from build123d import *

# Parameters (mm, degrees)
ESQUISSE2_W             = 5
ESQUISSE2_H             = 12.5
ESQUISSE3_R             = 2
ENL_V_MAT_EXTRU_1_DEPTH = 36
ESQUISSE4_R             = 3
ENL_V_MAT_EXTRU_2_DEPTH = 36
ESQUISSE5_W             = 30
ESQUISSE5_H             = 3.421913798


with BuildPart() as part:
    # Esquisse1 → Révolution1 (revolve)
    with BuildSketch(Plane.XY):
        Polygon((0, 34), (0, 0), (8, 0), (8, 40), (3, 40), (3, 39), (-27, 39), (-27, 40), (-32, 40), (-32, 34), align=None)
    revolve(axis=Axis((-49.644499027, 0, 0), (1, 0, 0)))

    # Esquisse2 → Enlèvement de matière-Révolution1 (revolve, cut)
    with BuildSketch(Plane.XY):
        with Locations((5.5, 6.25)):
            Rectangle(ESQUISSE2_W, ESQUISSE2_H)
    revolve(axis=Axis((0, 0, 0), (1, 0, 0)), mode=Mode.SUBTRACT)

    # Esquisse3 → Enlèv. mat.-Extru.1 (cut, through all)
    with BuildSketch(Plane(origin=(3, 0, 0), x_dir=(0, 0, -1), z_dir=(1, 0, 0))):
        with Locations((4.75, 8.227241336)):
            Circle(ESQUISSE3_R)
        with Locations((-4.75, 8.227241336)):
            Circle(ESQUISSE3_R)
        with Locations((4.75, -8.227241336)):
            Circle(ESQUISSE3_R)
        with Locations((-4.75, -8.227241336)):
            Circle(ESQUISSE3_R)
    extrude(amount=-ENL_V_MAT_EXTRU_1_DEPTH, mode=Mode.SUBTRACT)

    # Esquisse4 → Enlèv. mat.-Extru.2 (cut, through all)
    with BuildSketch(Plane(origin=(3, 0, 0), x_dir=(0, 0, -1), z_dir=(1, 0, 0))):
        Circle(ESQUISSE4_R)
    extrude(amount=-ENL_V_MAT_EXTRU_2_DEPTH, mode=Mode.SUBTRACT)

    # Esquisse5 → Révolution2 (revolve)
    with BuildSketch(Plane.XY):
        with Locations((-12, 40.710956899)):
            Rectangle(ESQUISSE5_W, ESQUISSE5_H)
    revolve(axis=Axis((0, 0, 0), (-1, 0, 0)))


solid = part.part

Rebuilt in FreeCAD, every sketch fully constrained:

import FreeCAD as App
import Part
import Sketcher

V = App.Vector
Q = App.Units.Quantity

doc = App.newDocument("Part")
params = doc.addObject("Spreadsheet::Sheet", "Params")
for row, (alias, value) in enumerate([
    ("sketch1_width", "8 mm"),
    ("sketch1_width2", "5 mm"),
    ("sketch1_width3", "30 mm"),
    ("sketch1_height", "34 mm"),
    ("sketch1_height2", "40 mm"),
    ("revolution_angle", "360 deg"),
    ("sketch2_width", "5 mm"),
    ("sketch2_height", "12.5 mm"),
    ("groove_angle", "360 deg"),
    ("sketch3_diameter", "4 mm"),
    ("sketch4_diameter", "6 mm"),
    ("sketch5_width", "30 mm"),
    ("revolution2_angle", "360 deg"),
], start=1):
    params.set(f"A{row}", alias)
    params.set(f"B{row}", "=" + value)
    params.setAlias(f"B{row}", alias)

body = doc.addObject("PartDesign::Body", "Body")

sketch1 = body.newObject("Sketcher::SketchObject", "Sketch")
sketch1.AttachmentSupport = (doc.getObject("XY_Plane"), [""])
sketch1.MapMode = "FlatFace"
sketch1.addGeometry([
    Part.LineSegment(V(0, 34, 0), V(0, 0, 0)),
    Part.LineSegment(V(0, 0, 0), V(8, 0, 0)),
    Part.LineSegment(V(8, 0, 0), V(8, 40, 0)),
    Part.LineSegment(V(8, 40, 0), V(3, 40, 0)),
    Part.LineSegment(V(3, 40, 0), V(3, 39, 0)),
    Part.LineSegment(V(3, 39, 0), V(-27, 39, 0)),
    Part.LineSegment(V(-27, 39, 0), V(-27, 40, 0)),
    Part.LineSegment(V(-27, 40, 0), V(-32, 40, 0)),
    Part.LineSegment(V(-32, 40, 0), V(-32, 34, 0)),
    Part.LineSegment(V(-32, 34, 0), V(0, 34, 0)),
], False)
sketch1.addConstraint([
    Sketcher.Constraint("Coincident", 0, 2, 1, 1),
    Sketcher.Constraint("Coincident", 1, 2, 2, 1),
    Sketcher.Constraint("Coincident", 2, 2, 3, 1),
    Sketcher.Constraint("Coincident", 3, 2, 4, 1),
    Sketcher.Constraint("Coincident", 4, 2, 5, 1),
    Sketcher.Constraint("Coincident", 5, 2, 6, 1),
    Sketcher.Constraint("Coincident", 6, 2, 7, 1),
    Sketcher.Constraint("Coincident", 7, 2, 8, 1),
    Sketcher.Constraint("Coincident", 8, 2, 9, 1),
    Sketcher.Constraint("Coincident", 9, 2, 0, 1),
    Sketcher.Constraint("Vertical", 0),
    Sketcher.Constraint("Horizontal", 1),
    Sketcher.Constraint("Vertical", 2),
    Sketcher.Constraint("Horizontal", 3),
    Sketcher.Constraint("Vertical", 4),
    Sketcher.Constraint("Horizontal", 5),
    Sketcher.Constraint("Vertical", 6),
    Sketcher.Constraint("Horizontal", 7),
    Sketcher.Constraint("Vertical", 8),
    Sketcher.Constraint("Horizontal", 9),
    Sketcher.Constraint("Coincident", 0, 2, -1, 1),
    Sketcher.Constraint("Horizontal", 3, 2, 6, 2),
    Sketcher.Constraint("Equal", 3, 7),
    Sketcher.Constraint("DistanceX", 1, 1, 1, 2, Q("8 mm")),
    Sketcher.Constraint("DistanceX", 3, 2, 3, 1, Q("5 mm")),
    Sketcher.Constraint("DistanceX", 5, 2, 5, 1, Q("30 mm")),
    Sketcher.Constraint("DistanceY", 0, 2, 0, 1, Q("34 mm")),
    Sketcher.Constraint("DistanceY", 2, 1, 2, 2, Q("40 mm")),
    Sketcher.Constraint("DistanceY", 4, 2, 4, 1, Q("1 mm")),
])
sketch1.setExpression("Constraints[23]", "Params.sketch1_width")
sketch1.setExpression("Constraints[24]", "Params.sketch1_width2")
sketch1.setExpression("Constraints[25]", "Params.sketch1_width3")
sketch1.setExpression("Constraints[26]", "Params.sketch1_height")
sketch1.setExpression("Constraints[27]", "Params.sketch1_height2")
revolution = body.newObject("PartDesign::Revolution", "Revolution")
revolution.Profile = sketch1
revolution.ReferenceAxis = (sketch1, ["H_Axis"])
revolution.setExpression("Angle", "Params.revolution_angle")

sketch2 = body.newObject("Sketcher::SketchObject", "Sketch001")
sketch2.AttachmentSupport = (doc.getObject("XY_Plane"), [""])
sketch2.MapMode = "FlatFace"
sketch2.addGeometry([
    Part.LineSegment(V(3, 12, 0), V(3, 0, 0)),
    Part.LineSegment(V(3, 0, 0), V(8, 0, 0)),
    Part.LineSegment(V(8, 0, 0), V(8, 12, 0)),
    Part.LineSegment(V(8, 12, 0), V(3, 12, 0)),
], False)
sketch2.addConstraint([
    Sketcher.Constraint("Coincident", 0, 2, 1, 1),
    Sketcher.Constraint("Coincident", 1, 2, 2, 1),
    Sketcher.Constraint("Coincident", 2, 2, 3, 1),
    Sketcher.Constraint("Coincident", 3, 2, 0, 1),
    Sketcher.Constraint("Vertical", 0),
    Sketcher.Constraint("Horizontal", 1),
    Sketcher.Constraint("Vertical", 2),
    Sketcher.Constraint("Horizontal", 3),
    Sketcher.Constraint("PointOnObject", 0, 2, -1),
    Sketcher.Constraint("DistanceX", 1, 1, 1, 2, Q("5 mm")),
    Sketcher.Constraint("DistanceY", 0, 2, 0, 1, Q("12.5 mm")),
    Sketcher.Constraint("DistanceX", -1, 1, 0, 2, Q("3 mm")),
])
sketch2.setExpression("Constraints[9]", "Params.sketch2_width")
sketch2.setExpression("Constraints[10]", "Params.sketch2_height")
groove = body.newObject("PartDesign::Groove", "Groove")
groove.Profile = sketch2
groove.ReferenceAxis = (sketch2, ["H_Axis"])
groove.setExpression("Angle", "Params.groove_angle")

sketch3 = body.newObject("Sketcher::SketchObject", "Sketch002")
sketch3.AttachmentSupport = (doc.getObject("YZ_Plane"), [""])
sketch3.MapMode = "FlatFace"
sketch3.AttachmentOffset = App.Placement(V(0, 0, 3), App.Rotation())
sketch3.addGeometry([
    Part.Circle(V(8.2, -4.8, 0), V(0, 0, 1), 2),
    Part.Circle(V(8.2, 4.8, 0), V(0, 0, 1), 2),
    Part.Circle(V(-8.2, -4.8, 0), V(0, 0, 1), 2),
    Part.Circle(V(-8.2, 4.8, 0), V(0, 0, 1), 2),
], False)
sketch3.addConstraint([
    Sketcher.Constraint("Equal", 0, 1),
    Sketcher.Constraint("Equal", 1, 2),
    Sketcher.Constraint("Equal", 2, 3),
    Sketcher.Constraint("Symmetric", 1, 3, 2, 3, -1, 1),
    Sketcher.Constraint("Symmetric", 0, 3, 3, 3, -1, 1),
    Sketcher.Constraint("Symmetric", 0, 3, 2, 3, -2),
    Sketcher.Constraint("Diameter", 0, Q("4 mm")),
    Sketcher.Constraint("DistanceY", 0, 3, 1, 3, Q("9.5 mm")),
    Sketcher.Constraint("DistanceX", -1, 1, 0, 3, Q("8.227241 mm")),
])
sketch3.setExpression("Constraints[6]", "Params.sketch3_diameter")
pocket1 = body.newObject("PartDesign::Pocket", "Pocket")
pocket1.Profile = sketch3
pocket1.Type = "ThroughAll"

sketch4 = body.newObject("Sketcher::SketchObject", "Sketch003")
sketch4.AttachmentSupport = (doc.getObject("YZ_Plane"), [""])
sketch4.MapMode = "FlatFace"
sketch4.AttachmentOffset = App.Placement(V(0, 0, 3), App.Rotation())
sketch4.addGeometry(Part.Circle(V(0, 0, 0), V(0, 0, 1), 3), False)
sketch4.addConstraint([
    Sketcher.Constraint("Coincident", 0, 3, -1, 1),
    Sketcher.Constraint("Diameter", 0, Q("6 mm")),
])
sketch4.setExpression("Constraints[1]", "Params.sketch4_diameter")
pocket2 = body.newObject("PartDesign::Pocket", "Pocket001")
pocket2.Profile = sketch4
pocket2.Type = "ThroughAll"

sketch5 = body.newObject("Sketcher::SketchObject", "Sketch004")
sketch5.AttachmentSupport = (doc.getObject("XY_Plane"), [""])
sketch5.MapMode = "FlatFace"
sketch5.addGeometry([
    Part.LineSegment(V(-27, 42.4, 0), V(-27, 39, 0)),
    Part.LineSegment(V(-27, 39, 0), V(3, 39, 0)),
    Part.LineSegment(V(3, 39, 0), V(3, 42.4, 0)),
    Part.LineSegment(V(3, 42.4, 0), V(-27, 42.4, 0)),
], False)
sketch5.addConstraint([
    Sketcher.Constraint("Coincident", 0, 2, 1, 1),
    Sketcher.Constraint("Coincident", 1, 2, 2, 1),
    Sketcher.Constraint("Coincident", 2, 2, 3, 1),
    Sketcher.Constraint("Coincident", 3, 2, 0, 1),
    Sketcher.Constraint("Vertical", 0),
    Sketcher.Constraint("Horizontal", 1),
    Sketcher.Constraint("Vertical", 2),
    Sketcher.Constraint("Horizontal", 3),
    Sketcher.Constraint("DistanceX", 1, 1, 1, 2, Q("30 mm")),
    Sketcher.Constraint("DistanceX", 0, 2, -1, 1, Q("27 mm")),
    Sketcher.Constraint("DistanceY", -1, 1, 0, 2, Q("39 mm")),
    Sketcher.Constraint("DistanceY", 0, 2, 0, 1, Q("3.421914 mm")),
])
sketch5.setExpression("Constraints[8]", "Params.sketch5_width")
revolution2 = body.newObject("PartDesign::Revolution", "Revolution001")
revolution2.Profile = sketch5
revolution2.ReferenceAxis = (sketch5, ["H_Axis"])
revolution2.setExpression("Angle", "Params.revolution2_angle")

doc.recompute()
